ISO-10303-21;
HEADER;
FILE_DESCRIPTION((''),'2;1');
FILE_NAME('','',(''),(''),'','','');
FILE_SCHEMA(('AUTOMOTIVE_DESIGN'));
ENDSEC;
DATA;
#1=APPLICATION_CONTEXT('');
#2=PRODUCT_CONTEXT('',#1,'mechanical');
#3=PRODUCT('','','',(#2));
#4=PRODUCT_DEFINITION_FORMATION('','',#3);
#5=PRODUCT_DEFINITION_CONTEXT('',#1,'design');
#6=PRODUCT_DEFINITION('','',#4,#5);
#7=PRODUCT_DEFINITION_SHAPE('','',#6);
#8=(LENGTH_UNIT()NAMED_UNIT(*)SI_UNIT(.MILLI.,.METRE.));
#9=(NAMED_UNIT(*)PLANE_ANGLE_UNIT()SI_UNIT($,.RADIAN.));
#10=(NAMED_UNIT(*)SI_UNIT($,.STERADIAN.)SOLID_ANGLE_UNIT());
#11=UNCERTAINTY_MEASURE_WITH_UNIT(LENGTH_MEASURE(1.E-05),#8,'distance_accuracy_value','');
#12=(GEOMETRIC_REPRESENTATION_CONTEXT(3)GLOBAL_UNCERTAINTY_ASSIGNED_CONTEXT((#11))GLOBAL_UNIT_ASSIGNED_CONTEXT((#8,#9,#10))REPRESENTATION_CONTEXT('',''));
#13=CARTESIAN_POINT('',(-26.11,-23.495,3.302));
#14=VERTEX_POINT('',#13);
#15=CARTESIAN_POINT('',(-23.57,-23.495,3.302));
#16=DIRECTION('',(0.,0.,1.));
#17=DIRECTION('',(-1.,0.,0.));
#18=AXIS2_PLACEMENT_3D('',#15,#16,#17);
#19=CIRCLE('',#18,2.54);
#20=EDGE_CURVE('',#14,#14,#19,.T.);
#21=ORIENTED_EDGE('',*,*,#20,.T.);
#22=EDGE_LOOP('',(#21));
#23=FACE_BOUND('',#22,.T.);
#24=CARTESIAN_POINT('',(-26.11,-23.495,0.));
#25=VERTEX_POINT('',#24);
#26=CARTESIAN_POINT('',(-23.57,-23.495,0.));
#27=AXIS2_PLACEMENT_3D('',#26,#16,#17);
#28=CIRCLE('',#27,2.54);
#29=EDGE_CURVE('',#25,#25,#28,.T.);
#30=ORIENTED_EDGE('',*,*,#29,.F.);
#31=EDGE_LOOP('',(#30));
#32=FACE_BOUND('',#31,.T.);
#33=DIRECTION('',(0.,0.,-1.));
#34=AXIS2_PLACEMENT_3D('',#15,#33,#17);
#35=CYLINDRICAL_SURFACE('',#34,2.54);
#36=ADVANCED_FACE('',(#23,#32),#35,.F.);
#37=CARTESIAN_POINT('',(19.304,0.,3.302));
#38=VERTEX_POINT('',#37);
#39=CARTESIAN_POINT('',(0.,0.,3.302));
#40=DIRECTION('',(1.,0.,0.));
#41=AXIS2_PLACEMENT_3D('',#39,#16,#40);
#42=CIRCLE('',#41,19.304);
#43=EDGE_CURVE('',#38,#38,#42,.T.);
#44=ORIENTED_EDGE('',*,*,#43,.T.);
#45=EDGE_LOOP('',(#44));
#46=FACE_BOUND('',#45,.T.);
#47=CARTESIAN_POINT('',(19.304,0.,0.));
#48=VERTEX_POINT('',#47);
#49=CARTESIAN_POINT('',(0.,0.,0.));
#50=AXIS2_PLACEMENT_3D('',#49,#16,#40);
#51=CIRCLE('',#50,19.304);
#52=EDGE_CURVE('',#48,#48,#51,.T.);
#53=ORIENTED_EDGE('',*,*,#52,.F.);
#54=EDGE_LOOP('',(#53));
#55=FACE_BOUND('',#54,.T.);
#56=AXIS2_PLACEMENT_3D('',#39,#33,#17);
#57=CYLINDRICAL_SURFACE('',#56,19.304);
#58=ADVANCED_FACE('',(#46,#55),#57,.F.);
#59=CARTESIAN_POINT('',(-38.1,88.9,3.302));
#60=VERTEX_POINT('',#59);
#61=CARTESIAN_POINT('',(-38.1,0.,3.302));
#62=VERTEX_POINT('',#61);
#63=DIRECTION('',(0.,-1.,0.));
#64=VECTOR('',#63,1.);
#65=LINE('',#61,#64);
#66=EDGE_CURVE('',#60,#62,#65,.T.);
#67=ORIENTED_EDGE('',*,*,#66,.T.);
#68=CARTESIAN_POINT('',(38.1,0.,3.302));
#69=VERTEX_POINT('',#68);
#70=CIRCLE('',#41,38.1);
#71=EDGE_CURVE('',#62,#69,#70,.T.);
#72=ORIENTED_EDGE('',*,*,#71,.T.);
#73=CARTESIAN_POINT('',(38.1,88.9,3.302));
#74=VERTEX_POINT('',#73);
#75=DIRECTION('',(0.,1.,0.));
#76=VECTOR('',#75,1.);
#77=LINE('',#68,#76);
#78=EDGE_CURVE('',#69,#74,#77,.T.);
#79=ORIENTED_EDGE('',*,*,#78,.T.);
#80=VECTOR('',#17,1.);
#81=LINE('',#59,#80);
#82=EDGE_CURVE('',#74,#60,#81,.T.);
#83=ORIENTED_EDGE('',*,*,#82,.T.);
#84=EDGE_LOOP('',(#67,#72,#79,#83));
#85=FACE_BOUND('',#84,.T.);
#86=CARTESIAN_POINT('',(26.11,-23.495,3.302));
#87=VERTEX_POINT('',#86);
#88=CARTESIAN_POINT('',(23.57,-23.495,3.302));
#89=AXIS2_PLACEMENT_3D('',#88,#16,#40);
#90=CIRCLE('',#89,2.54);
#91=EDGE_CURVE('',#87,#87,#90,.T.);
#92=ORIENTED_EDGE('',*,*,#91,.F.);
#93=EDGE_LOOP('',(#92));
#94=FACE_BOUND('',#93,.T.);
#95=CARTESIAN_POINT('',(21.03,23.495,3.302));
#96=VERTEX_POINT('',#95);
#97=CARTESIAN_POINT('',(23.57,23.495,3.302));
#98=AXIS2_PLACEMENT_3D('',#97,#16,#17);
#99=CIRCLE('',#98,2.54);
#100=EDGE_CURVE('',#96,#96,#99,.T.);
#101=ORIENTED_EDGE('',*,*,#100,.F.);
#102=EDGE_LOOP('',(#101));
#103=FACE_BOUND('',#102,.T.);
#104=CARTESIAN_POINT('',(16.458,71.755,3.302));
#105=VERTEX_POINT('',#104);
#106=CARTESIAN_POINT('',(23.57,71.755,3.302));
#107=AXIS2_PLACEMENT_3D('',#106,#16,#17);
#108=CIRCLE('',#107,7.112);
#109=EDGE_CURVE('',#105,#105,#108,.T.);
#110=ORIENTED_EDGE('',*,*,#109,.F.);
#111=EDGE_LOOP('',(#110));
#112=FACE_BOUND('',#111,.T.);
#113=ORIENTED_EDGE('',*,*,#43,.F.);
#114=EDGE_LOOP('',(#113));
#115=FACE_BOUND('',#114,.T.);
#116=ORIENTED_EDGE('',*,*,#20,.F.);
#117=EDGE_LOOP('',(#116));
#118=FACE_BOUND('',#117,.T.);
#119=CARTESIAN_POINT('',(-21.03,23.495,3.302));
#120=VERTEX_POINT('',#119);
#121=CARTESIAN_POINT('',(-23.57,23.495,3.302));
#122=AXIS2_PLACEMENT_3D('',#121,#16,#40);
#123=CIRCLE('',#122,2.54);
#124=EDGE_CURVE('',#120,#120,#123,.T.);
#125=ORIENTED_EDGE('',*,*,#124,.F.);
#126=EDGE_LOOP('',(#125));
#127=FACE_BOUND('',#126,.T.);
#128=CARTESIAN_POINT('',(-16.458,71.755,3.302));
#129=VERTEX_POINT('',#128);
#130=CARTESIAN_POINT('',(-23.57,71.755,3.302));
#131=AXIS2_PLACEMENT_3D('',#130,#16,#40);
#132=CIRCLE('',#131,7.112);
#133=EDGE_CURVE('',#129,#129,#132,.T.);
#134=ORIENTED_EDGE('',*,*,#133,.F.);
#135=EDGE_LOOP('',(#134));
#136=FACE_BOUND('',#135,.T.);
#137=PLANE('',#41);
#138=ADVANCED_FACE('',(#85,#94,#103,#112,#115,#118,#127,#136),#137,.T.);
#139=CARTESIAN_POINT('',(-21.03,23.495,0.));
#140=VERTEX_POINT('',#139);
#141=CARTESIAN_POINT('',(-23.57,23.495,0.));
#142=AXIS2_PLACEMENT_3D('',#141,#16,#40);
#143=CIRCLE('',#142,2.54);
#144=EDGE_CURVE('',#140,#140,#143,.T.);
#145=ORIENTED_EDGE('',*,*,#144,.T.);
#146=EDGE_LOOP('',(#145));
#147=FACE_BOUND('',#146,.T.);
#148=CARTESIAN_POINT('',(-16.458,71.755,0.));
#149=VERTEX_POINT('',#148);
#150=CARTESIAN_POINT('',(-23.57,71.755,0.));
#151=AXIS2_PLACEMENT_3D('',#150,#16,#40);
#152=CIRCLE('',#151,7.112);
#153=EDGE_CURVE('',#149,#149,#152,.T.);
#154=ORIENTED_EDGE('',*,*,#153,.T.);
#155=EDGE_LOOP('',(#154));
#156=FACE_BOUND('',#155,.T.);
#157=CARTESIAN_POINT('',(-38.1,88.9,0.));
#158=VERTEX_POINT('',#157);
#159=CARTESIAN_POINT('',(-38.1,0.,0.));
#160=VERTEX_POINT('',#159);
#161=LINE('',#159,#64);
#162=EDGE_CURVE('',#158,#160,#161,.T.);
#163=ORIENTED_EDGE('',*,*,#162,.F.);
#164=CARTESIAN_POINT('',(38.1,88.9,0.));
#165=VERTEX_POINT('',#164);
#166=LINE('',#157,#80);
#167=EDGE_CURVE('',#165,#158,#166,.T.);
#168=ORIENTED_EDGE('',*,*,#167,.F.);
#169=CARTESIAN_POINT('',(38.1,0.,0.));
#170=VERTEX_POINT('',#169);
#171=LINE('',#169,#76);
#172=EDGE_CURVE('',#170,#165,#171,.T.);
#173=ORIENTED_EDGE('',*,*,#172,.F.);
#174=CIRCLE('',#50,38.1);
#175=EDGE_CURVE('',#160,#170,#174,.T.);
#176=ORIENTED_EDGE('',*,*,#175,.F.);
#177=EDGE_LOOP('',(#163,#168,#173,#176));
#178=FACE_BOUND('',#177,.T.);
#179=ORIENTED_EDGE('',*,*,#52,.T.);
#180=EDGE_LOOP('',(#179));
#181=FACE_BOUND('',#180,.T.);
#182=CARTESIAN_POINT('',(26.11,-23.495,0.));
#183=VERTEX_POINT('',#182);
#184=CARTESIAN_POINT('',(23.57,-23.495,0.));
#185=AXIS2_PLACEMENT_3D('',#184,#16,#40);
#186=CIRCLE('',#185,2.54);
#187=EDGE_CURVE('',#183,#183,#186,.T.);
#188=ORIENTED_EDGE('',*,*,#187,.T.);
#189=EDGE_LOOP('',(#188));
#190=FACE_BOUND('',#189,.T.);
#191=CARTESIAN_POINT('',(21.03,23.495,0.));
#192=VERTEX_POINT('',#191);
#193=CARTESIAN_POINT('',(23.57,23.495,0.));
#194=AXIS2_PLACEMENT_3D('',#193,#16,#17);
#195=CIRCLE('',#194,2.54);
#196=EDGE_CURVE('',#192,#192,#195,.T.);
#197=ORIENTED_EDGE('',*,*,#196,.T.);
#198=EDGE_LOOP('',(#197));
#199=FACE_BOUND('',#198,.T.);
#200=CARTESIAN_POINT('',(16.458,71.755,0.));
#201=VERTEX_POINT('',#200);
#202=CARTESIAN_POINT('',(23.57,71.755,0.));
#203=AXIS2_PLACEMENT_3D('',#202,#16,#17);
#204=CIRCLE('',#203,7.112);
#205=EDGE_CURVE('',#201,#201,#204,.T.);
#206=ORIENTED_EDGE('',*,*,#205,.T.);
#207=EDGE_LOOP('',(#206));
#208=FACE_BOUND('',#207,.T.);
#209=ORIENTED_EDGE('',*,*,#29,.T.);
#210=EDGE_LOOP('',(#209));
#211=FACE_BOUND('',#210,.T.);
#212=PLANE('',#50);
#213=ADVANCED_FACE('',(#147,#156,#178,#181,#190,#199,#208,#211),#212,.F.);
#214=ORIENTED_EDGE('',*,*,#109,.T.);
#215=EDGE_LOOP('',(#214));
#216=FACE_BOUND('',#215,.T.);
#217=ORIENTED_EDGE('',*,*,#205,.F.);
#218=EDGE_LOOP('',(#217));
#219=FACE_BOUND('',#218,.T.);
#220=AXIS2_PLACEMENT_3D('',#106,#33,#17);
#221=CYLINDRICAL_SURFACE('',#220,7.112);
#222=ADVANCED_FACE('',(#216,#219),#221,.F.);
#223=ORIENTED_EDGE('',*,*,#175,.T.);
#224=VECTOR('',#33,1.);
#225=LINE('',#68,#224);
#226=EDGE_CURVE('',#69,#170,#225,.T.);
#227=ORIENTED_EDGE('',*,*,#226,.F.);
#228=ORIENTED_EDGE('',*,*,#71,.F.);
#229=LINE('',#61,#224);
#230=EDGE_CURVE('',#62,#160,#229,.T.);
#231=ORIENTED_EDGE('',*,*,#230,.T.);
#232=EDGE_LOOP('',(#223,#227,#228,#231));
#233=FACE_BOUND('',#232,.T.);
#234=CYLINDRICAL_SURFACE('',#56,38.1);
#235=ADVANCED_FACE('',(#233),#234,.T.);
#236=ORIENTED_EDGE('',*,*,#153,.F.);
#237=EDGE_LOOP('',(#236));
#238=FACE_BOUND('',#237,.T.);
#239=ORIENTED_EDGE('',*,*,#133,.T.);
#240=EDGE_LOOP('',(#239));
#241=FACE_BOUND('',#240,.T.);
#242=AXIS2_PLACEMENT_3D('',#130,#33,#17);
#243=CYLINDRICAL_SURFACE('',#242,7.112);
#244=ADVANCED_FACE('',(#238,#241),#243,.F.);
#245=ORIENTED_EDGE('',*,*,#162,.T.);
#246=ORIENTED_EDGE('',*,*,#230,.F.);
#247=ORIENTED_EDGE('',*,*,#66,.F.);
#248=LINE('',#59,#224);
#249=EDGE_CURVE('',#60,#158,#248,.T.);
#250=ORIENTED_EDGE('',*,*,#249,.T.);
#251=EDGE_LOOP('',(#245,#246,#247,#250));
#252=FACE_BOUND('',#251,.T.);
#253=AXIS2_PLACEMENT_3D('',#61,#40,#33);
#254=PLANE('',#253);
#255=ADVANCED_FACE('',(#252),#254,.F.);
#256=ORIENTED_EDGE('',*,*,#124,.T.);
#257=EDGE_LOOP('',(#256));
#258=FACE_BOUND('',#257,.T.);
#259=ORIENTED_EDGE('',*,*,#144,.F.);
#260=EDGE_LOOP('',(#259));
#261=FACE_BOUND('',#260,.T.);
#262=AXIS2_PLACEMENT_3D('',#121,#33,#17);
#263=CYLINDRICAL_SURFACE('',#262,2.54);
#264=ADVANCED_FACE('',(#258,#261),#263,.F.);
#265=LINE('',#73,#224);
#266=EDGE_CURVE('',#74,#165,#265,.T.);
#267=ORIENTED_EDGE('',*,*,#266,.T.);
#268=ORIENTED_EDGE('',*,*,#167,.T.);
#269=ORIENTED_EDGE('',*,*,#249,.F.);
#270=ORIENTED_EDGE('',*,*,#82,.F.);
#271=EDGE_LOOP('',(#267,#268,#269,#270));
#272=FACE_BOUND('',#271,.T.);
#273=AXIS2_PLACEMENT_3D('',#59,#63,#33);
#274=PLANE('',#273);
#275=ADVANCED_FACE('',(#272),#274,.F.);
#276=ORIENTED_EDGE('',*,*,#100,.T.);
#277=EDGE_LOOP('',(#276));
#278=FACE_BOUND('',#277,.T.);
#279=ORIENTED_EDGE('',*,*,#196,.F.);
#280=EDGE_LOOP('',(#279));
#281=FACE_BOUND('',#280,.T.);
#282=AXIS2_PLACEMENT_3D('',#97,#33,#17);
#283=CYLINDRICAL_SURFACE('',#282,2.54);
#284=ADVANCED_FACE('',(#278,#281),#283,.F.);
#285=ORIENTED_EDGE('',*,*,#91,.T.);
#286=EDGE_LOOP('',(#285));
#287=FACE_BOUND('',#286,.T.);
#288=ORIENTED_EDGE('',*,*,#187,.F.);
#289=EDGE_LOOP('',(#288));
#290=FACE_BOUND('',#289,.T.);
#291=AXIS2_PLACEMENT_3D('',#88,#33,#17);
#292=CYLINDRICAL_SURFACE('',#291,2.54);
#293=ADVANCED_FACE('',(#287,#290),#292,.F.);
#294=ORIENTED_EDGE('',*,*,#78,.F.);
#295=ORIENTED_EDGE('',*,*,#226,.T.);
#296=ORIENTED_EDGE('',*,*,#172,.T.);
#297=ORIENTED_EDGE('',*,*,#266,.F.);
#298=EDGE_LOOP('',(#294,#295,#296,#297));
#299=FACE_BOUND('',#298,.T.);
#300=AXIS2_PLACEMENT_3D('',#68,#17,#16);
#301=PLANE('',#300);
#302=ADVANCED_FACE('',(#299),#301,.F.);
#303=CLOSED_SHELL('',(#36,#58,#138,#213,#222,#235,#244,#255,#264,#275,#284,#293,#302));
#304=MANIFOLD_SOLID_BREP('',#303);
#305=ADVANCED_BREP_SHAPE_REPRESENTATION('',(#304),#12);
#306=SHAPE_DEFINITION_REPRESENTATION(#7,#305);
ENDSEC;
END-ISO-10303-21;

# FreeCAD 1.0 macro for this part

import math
import FreeCAD as App
import Part
import Sketcher

V = App.Vector
Q = App.Units.Quantity

doc = App.newDocument("Part")
body = doc.addObject("PartDesign::Body", "Body")

sketch1 = doc.addObject("Sketcher::SketchObject", "Sketch")
body.addObject(sketch1)
sketch1.AttachmentSupport = (doc.XY_Plane, [""])
sketch1.MapMode = "FlatFace"
sketch1.addGeometry([
    Part.LineSegment(V(-38.1, 88.9, 0), V(-38.1, 0, 0)),
    Part.ArcOfCircle(Part.Circle(V(0, 0, 0), V(0, 0, 1), 38.1), math.radians(180), math.radians(360)),
    Part.LineSegment(V(38.1, 0, 0), V(38.1, 88.9, 0)),
    Part.LineSegment(V(38.1, 88.9, 0), V(-38.1, 88.9, 0)),
    Part.Circle(V(23.6, -23.5, 0), V(0, 0, 1), 2.5),
    Part.Circle(V(0, 0, 0), V(0, 0, 1), 19.3),
    Part.Circle(V(23.6, 23.5, 0), V(0, 0, 1), 2.5),
    Part.Circle(V(-23.6, -23.5, 0), V(0, 0, 1), 2.5),
    Part.Circle(V(-23.6, 23.5, 0), V(0, 0, 1), 2.5),
    Part.Circle(V(23.6, 71.8, 0), V(0, 0, 1), 7.1),
    Part.Circle(V(-23.6, 71.8, 0), V(0, 0, 1), 7.1),
], False)
sketch1.addConstraint([
    Sketcher.Constraint("Tangent", 0, 2, 1, 1),
    Sketcher.Constraint("Tangent", 1, 2, 2, 1),
    Sketcher.Constraint("Coincident", 2, 2, 3, 1),
    Sketcher.Constraint("Coincident", 3, 2, 0, 1),
    Sketcher.Constraint("Vertical", 0),
    Sketcher.Constraint("Vertical", 2),
    Sketcher.Constraint("Horizontal", 3),
    Sketcher.Constraint("Coincident", 1, 3, -1, 1),
    Sketcher.Constraint("Coincident", 5, 3, -1, 1),
    Sketcher.Constraint("Equal", 4, 6),
    Sketcher.Constraint("Equal", 6, 7),
    Sketcher.Constraint("Equal", 7, 8),
    Sketcher.Constraint("Equal", 9, 10),
    Sketcher.Constraint("Symmetric", 6, 3, 7, 3, -1, 1),
    Sketcher.Constraint("Symmetric", 4, 3, 8, 3, -1, 1),
    Sketcher.Constraint("Symmetric", 4, 3, 7, 3, -2),
    Sketcher.Constraint("Symmetric", 9, 3, 10, 3, -2),
    Sketcher.Constraint("Vertical", 6, 3, 9, 3),
    Sketcher.Constraint("Diameter", 4, Q("0.2 in")),
    Sketcher.Constraint("Radius", 1, Q("1.5 in")),
    Sketcher.Constraint("Diameter", 5, Q("1.52 in")),
    Sketcher.Constraint("Diameter", 9, Q("0.56 in")),
    Sketcher.Constraint("DistanceY", 0, 2, 0, 1, Q("3.5 in")),
    Sketcher.Constraint("DistanceY", 6, 3, 9, 3, Q("1.9 in")),
    Sketcher.Constraint("DistanceY", 4, 3, 6, 3, Q("1.85 in")),
    Sketcher.Constraint("DistanceX", -1, 1, 4, 3, Q("23.57 mm")),
])
pad1 = doc.addObject("PartDesign::Pad", "Pad")
body.addObject(pad1)
pad1.Profile = sketch1
pad1.Length = Q("0.13 in")

doc.recompute()
